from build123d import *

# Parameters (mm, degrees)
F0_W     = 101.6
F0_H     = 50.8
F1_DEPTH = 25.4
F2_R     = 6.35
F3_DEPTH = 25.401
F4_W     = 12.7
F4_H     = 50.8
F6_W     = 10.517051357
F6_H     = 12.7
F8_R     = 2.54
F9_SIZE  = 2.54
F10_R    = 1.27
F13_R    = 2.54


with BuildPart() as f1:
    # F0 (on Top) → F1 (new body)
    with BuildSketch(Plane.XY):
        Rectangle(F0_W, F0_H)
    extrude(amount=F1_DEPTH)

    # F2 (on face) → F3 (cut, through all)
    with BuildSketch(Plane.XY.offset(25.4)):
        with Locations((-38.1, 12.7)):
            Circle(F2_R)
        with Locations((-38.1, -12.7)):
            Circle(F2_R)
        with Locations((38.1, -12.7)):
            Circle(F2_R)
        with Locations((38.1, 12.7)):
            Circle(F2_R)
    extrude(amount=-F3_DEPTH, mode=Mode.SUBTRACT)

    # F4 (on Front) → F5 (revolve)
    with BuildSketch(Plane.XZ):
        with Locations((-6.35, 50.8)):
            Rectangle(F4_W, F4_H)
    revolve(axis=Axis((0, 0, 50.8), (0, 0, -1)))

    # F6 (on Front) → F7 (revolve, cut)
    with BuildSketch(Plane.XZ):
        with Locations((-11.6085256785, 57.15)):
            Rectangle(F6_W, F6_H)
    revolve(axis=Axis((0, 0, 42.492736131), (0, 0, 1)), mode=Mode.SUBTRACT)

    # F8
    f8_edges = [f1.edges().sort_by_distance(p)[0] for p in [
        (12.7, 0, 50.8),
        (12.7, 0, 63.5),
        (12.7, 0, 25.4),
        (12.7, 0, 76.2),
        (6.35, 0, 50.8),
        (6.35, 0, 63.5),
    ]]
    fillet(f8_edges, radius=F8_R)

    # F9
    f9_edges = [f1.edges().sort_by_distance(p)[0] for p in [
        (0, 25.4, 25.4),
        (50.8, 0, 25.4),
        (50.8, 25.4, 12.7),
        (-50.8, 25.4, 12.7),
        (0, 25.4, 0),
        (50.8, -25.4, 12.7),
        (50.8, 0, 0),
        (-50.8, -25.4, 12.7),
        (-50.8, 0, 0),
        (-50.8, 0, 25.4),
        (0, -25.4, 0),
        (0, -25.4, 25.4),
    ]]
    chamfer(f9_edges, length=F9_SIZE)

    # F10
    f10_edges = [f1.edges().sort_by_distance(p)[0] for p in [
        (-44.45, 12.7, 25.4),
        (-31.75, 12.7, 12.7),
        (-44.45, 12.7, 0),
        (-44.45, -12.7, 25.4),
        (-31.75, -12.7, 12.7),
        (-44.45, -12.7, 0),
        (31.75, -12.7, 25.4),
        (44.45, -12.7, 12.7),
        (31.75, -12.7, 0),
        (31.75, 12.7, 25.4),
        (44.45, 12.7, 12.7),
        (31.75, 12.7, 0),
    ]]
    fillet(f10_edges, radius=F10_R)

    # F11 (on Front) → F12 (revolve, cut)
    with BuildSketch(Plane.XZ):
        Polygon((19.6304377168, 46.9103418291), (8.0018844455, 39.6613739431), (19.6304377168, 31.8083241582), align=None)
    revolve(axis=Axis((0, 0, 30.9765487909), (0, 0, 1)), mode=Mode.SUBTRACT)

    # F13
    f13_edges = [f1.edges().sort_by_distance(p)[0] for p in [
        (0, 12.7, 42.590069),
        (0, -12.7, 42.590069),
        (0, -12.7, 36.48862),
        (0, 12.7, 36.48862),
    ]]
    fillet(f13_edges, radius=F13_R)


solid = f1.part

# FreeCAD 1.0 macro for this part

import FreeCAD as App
import Part
import Sketcher

V = App.Vector
Q = App.Units.Quantity


def edges_at(feature, points):
    """Names of the edges that pass closest to the given points."""
    edges = feature.Shape.Edges
    near = lambda p: min(range(len(edges)), key=lambda i: edges[i].distToShape(Part.Vertex(*p))[0])
    return sorted({f"Edge{near(p) + 1}" for p in points})


def add_polygon(sketch, points):
    """Adds a closed chain of lines whose ends are joined by coincident constraints."""
    first, n = sketch.GeometryCount, len(points)
    for a, b in zip(points, points[1:] + points[:1]):
        sketch.addGeometry(Part.LineSegment(App.Vector(*a, 0), App.Vector(*b, 0)), False)
    for i in range(n):
        sketch.addConstraint(Sketcher.Constraint("Coincident", first + i, 2, first + (i + 1) % n, 1))

doc = App.newDocument("Part")
body = doc.addObject("PartDesign::Body", "Body")

# Sketch on XY plane
sketch1 = body.newObject("Sketcher::SketchObject", "Sketch")
sketch1.AttachmentSupport = (doc.getObject("XY_Plane"), [""])
sketch1.MapMode = "FlatFace"
add_polygon(sketch1, [(-51, 25), (-51, -25), (51, -25), (51, 25)])  # lines 0-3
sketch1.addConstraint([
    Sketcher.Constraint("Vertical", 0),
    Sketcher.Constraint("Horizontal", 1),
    Sketcher.Constraint("Vertical", 2),
    Sketcher.Constraint("Horizontal", 3),
    Sketcher.Constraint("Symmetric", 0, 2, 2, 2, -1, 1),
    Sketcher.Constraint("DistanceX", 1, 1, 1, 2, Q("4 in")),
    Sketcher.Constraint("DistanceY", 0, 2, 0, 1, Q("2 in")),
])
pad1 = body.newObject("PartDesign::Pad", "Pad")
pad1.Profile = sketch1
pad1.Length = Q("1 in")

# Sketch on XY plane
sketch2 = body.newObject("Sketcher::SketchObject", "Sketch001")
sketch2.AttachmentSupport = (doc.getObject("XY_Plane"), [""])
sketch2.MapMode = "FlatFace"
sketch2.AttachmentOffset = App.Placement(V(0, 0, 1 * 25.4), App.Rotation())
sketch2.addGeometry([
    Part.Circle(V(-38, 13, 0), V(0, 0, 1), 6),
    Part.Circle(V(-38, -13, 0), V(0, 0, 1), 6),
    Part.Circle(V(38, -13, 0), V(0, 0, 1), 6),
    Part.Circle(V(38, 13, 0), V(0, 0, 1), 6),
], False)
sketch2.addConstraint([
    Sketcher.Constraint("Equal", 0, 1),
    Sketcher.Constraint("Equal", 1, 2),
    Sketcher.Constraint("Equal", 2, 3),
    Sketcher.Constraint("Symmetric", 0, 3, 2, 3, -1, 1),
    Sketcher.Constraint("Symmetric", 1, 3, 3, 3, -1, 1),
    Sketcher.Constraint("Symmetric", 1, 3, 2, 3, -2),
    Sketcher.Constraint("Diameter", 0, Q("0.5 in")),
    Sketcher.Constraint("DistanceY", 1, 3, 0, 3, Q("1 in")),
    Sketcher.Constraint("DistanceX", 1, 3, 2, 3, Q("3 in")),
])
pocket1 = body.newObject("PartDesign::Pocket", "Pocket")
pocket1.Profile = sketch2
pocket1.Type = "ThroughAll"

# Sketch on XZ plane
sketch3 = body.newObject("Sketcher::SketchObject", "Sketch002")
sketch3.AttachmentSupport = (doc.getObject("XZ_Plane"), [""])
sketch3.MapMode = "FlatFace"
add_polygon(sketch3, [(-13, 76), (-13, 25), (0, 25), (0, 76)])  # lines 0-3
sketch3.addConstraint([
    Sketcher.Constraint("Vertical", 0),
    Sketcher.Constraint("Horizontal", 1),
    Sketcher.Constraint("Vertical", 2),
    Sketcher.Constraint("Horizontal", 3),
    Sketcher.Constraint("PointOnObject", 1, 2, -2),
    Sketcher.Constraint("DistanceY", 0, 2, 0, 1, Q("2 in")),
    Sketcher.Constraint("DistanceX", 1, 1, 1, 2, Q("0.5 in")),
    Sketcher.Constraint("DistanceY", -1, 1, 0, 2, Q("1 in")),
])
revolution = body.newObject("PartDesign::Revolution", "Revolution")
revolution.Profile = sketch3
revolution.ReferenceAxis = (sketch3, ["V_Axis"])
revolution.Angle = 360

# Sketch on XZ plane
sketch4 = body.newObject("Sketcher::SketchObject", "Sketch003")
sketch4.AttachmentSupport = (doc.getObject("XZ_Plane"), [""])
sketch4.MapMode = "FlatFace"
add_polygon(sketch4, [(-17, 64), (-17, 51), (-6, 51), (-6, 64)])  # lines 0-3
sketch4.addConstraint([
    Sketcher.Constraint("Vertical", 0),
    Sketcher.Constraint("Horizontal", 1),
    Sketcher.Constraint("Vertical", 2),
    Sketcher.Constraint("Horizontal", 3),
    Sketcher.Constraint("DistanceY", 0, 2, 0, 1, Q("0.5 in")),
    Sketcher.Constraint("DistanceY", -1, 1, 0, 2, Q("2 in")),
    Sketcher.Constraint("DistanceX", 1, 2, -1, 1, Q("0.25 in")),
    Sketcher.Constraint("DistanceX", 1, 1, 1, 2, Q("10.517051 mm")),
])
groove = body.newObject("PartDesign::Groove", "Groove")
groove.Profile = sketch4
groove.ReferenceAxis = (sketch4, ["V_Axis"])
groove.Angle = 360
doc.recompute()

fillet = body.newObject("PartDesign::Fillet", "Fillet")
fillet.Base = (groove, edges_at(groove, [
    (12.7, 0, 50.8),
    (12.7, 0, 63.5),
    (12.7, 0, 25.4),
    (12.7, 0, 76.2),
    (6.35, 0, 50.8),
    (6.35, 0, 63.5),
]))
fillet.Radius = Q("0.1 in")
doc.recompute()

chamfer = body.newObject("PartDesign::Chamfer", "Chamfer")
chamfer.Base = (fillet, edges_at(fillet, [
    (0, 25.4, 25.4),
    (50.8, 0, 25.4),
    (50.8, 25.4, 12.7),
    (-50.8, 25.4, 12.7),
    (0, 25.4, 0),
    (50.8, -25.4, 12.7),
    (50.8, 0, 0),
    (-50.8, -25.4, 12.7),
    (-50.8, 0, 0),
    (-50.8, 0, 25.4),
    (0, -25.4, 0),
    (0, -25.4, 25.4),
]))
chamfer.Size = Q("0.1 in")
doc.recompute()

fillet2 = body.newObject("PartDesign::Fillet", "Fillet001")
fillet2.Base = (chamfer, edges_at(chamfer, [
    (-44.45, 12.7, 25.4),
    (-31.75, 12.7, 12.7),
    (-44.45, 12.7, 0),
    (-44.45, -12.7, 25.4),
    (-31.75, -12.7, 12.7),
    (-44.45, -12.7, 0),
    (31.75, -12.7, 25.4),
    (44.45, -12.7, 12.7),
    (31.75, -12.7, 0),
    (31.75, 12.7, 25.4),
    (44.45, 12.7, 12.7),
    (31.75, 12.7, 0),
]))
fillet2.Radius = Q("0.05 in")

# Sketch on XZ plane
sketch5 = body.newObject("Sketcher::SketchObject", "Sketch004")
sketch5.AttachmentSupport = (doc.getObject("XZ_Plane"), [""])
sketch5.MapMode = "FlatFace"
add_polygon(sketch5, [(20, 47), (8, 40), (20, 32)])  # lines 0-2
sketch5.addConstraint([
    Sketcher.Constraint("Vertical", 2),
    Sketcher.Constraint("Distance", 0, Q("13.702948 mm")),
    Sketcher.Constraint("Distance", 1, Q("14.031879 mm")),
    Sketcher.Constraint("DistanceY", 2, 1, 2, 2, Q("15.102018 mm")),
    Sketcher.Constraint("DistanceY", -1, 1, 2, 2, Q("46.910342 mm")),
    Sketcher.Constraint("DistanceX", -1, 1, 0, 2, Q("8.001884 mm")),
])
groove2 = body.newObject("PartDesign::Groove", "Groove001")
groove2.Profile = sketch5
groove2.ReferenceAxis = (sketch5, ["V_Axis"])
groove2.Angle = 360
doc.recompute()

fillet3 = body.newObject("PartDesign::Fillet", "Fillet002")
fillet3.Base = (groove2, edges_at(groove2, [
    (0, 12.7, 42.59),
    (0, -12.7, 42.59),
    (0, -12.7, 36.489),
    (0, 12.7, 36.489),
]))
fillet3.Radius = Q("0.1 in")

doc.recompute()
